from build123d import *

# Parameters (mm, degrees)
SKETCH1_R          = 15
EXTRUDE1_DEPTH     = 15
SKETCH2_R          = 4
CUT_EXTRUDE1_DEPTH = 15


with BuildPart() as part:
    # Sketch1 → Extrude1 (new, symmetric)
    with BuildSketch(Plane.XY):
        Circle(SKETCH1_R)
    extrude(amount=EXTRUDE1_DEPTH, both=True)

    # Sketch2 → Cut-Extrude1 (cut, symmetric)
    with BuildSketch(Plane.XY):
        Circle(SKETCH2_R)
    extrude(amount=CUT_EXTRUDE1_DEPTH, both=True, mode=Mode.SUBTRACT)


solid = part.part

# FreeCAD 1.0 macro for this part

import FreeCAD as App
import Part
import Sketcher

V = App.Vector
Q = App.Units.Quantity

doc = App.newDocument("Part")
body = doc.addObject("PartDesign::Body", "Body")

# Sketch on XY plane
sketch1 = body.newObject("Sketcher::SketchObject", "Sketch")
sketch1.AttachmentSupport = (doc.getObject("XY_Plane"), [""])
sketch1.MapMode = "FlatFace"
sketch1.addGeometry(Part.Circle(V(0, 0, 0), V(0, 0, 1), 15), False)
sketch1.addConstraint(Sketcher.Constraint("Coincident", 0, 3, -1, 1))
sketch1.addConstraint(Sketcher.Constraint("Diameter", 0, Q("30 mm")))
pad1 = body.newObject("PartDesign::Pad", "Pad")
pad1.Profile = sketch1
pad1.Length = 30
pad1.Midplane = True

# Sketch on XY plane
sketch2 = body.newObject("Sketcher::SketchObject", "Sketch001")
sketch2.AttachmentSupport = (doc.getObject("XY_Plane"), [""])
sketch2.MapMode = "FlatFace"
sketch2.addGeometry(Part.Circle(V(0, 0, 0), V(0, 0, 1), 4), False)
sketch2.addConstraint(Sketcher.Constraint("Coincident", 0, 3, -1, 1))
sketch2.addConstraint(Sketcher.Constraint("Diameter", 0, Q("8 mm")))
pocket1 = body.newObject("PartDesign::Pocket", "Pocket")
pocket1.Profile = sketch2
pocket1.Length = 30
pocket1.Midplane = True

doc.recompute()
